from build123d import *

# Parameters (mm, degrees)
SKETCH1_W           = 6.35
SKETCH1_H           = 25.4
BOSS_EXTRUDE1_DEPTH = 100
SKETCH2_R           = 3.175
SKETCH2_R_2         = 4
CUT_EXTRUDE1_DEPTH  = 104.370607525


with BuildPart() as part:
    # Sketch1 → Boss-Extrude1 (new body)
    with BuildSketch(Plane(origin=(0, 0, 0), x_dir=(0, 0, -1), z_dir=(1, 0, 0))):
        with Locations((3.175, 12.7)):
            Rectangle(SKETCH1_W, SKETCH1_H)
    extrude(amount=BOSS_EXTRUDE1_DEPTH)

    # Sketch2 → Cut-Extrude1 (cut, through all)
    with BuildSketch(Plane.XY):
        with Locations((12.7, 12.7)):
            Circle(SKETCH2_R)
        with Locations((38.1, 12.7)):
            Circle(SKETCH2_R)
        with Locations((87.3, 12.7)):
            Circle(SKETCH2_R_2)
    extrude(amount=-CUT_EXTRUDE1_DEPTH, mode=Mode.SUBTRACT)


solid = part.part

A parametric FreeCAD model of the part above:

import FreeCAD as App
import Part
import Sketcher

V = App.Vector
Q = App.Units.Quantity


def add_polygon(sketch, points):
    """Adds a closed chain of lines whose ends are joined by coincident constraints."""
    first, n = sketch.GeometryCount, len(points)
    for a, b in zip(points, points[1:] + points[:1]):
        sketch.addGeometry(Part.LineSegment(App.Vector(*a, 0), App.Vector(*b, 0)), False)
    for i in range(n):
        sketch.addConstraint(Sketcher.Constraint("Coincident", first + i, 2, first + (i + 1) % n, 1))

doc = App.newDocument("Part")
body = doc.addObject("PartDesign::Body", "Body")

# Sketch on YZ plane
sketch1 = body.newObject("Sketcher::SketchObject", "Sketch")
sketch1.AttachmentSupport = (doc.getObject("YZ_Plane"), [""])
sketch1.MapMode = "FlatFace"
add_polygon(sketch1, [(25, 0), (0, 0), (0, -6), (25, -6)])  # lines 0-3
sketch1.addConstraint([
    Sketcher.Constraint("Horizontal", 0),
    Sketcher.Constraint("Vertical", 1),
    Sketcher.Constraint("Horizontal", 2),
    Sketcher.Constraint("Vertical", 3),
    Sketcher.Constraint("Coincident", 0, 2, -1, 1),
    Sketcher.Constraint("DistanceX", 0, 2, 0, 1, Q("25.4 mm")),
    Sketcher.Constraint("DistanceY", 1, 2, 1, 1, Q("6.35 mm")),
])
pad1 = body.newObject("PartDesign::Pad", "Pad")
pad1.Profile = sketch1
pad1.Length = 100

# Sketch on XY plane
sketch2 = body.newObject("Sketcher::SketchObject", "Sketch001")
sketch2.AttachmentSupport = (doc.getObject("XY_Plane"), [""])
sketch2.MapMode = "FlatFace"
sketch2.addGeometry([
    Part.Circle(V(12.7, 12.7, 0), V(0, 0, 1), 3.2),
    Part.Circle(V(38.1, 12.7, 0), V(0, 0, 1), 3.2),
    Part.Circle(V(87.3, 12.7, 0), V(0, 0, 1), 4),
], False)
sketch2.addConstraint([
    Sketcher.Constraint("Equal", 0, 1),
    Sketcher.Constraint("Horizontal", 0, 3, 1, 3),
    Sketcher.Constraint("Horizontal", 1, 3, 2, 3),
    Sketcher.Constraint("Diameter", 2, Q("8 mm")),
    Sketcher.Constraint("Diameter", 0, Q("6.35 mm")),
    Sketcher.Constraint("DistanceX", -1, 1, 0, 3, Q("12.7 mm")),
    Sketcher.Constraint("DistanceY", -1, 1, 0, 3, Q("12.7 mm")),
    Sketcher.Constraint("DistanceX", -1, 1, 1, 3, Q("38.1 mm")),
    Sketcher.Constraint("DistanceX", -1, 1, 2, 3, Q("87.3 mm")),
])
pocket1 = body.newObject("PartDesign::Pocket", "Pocket")
pocket1.Profile = sketch2
pocket1.Type = "ThroughAll"

doc.recompute()
